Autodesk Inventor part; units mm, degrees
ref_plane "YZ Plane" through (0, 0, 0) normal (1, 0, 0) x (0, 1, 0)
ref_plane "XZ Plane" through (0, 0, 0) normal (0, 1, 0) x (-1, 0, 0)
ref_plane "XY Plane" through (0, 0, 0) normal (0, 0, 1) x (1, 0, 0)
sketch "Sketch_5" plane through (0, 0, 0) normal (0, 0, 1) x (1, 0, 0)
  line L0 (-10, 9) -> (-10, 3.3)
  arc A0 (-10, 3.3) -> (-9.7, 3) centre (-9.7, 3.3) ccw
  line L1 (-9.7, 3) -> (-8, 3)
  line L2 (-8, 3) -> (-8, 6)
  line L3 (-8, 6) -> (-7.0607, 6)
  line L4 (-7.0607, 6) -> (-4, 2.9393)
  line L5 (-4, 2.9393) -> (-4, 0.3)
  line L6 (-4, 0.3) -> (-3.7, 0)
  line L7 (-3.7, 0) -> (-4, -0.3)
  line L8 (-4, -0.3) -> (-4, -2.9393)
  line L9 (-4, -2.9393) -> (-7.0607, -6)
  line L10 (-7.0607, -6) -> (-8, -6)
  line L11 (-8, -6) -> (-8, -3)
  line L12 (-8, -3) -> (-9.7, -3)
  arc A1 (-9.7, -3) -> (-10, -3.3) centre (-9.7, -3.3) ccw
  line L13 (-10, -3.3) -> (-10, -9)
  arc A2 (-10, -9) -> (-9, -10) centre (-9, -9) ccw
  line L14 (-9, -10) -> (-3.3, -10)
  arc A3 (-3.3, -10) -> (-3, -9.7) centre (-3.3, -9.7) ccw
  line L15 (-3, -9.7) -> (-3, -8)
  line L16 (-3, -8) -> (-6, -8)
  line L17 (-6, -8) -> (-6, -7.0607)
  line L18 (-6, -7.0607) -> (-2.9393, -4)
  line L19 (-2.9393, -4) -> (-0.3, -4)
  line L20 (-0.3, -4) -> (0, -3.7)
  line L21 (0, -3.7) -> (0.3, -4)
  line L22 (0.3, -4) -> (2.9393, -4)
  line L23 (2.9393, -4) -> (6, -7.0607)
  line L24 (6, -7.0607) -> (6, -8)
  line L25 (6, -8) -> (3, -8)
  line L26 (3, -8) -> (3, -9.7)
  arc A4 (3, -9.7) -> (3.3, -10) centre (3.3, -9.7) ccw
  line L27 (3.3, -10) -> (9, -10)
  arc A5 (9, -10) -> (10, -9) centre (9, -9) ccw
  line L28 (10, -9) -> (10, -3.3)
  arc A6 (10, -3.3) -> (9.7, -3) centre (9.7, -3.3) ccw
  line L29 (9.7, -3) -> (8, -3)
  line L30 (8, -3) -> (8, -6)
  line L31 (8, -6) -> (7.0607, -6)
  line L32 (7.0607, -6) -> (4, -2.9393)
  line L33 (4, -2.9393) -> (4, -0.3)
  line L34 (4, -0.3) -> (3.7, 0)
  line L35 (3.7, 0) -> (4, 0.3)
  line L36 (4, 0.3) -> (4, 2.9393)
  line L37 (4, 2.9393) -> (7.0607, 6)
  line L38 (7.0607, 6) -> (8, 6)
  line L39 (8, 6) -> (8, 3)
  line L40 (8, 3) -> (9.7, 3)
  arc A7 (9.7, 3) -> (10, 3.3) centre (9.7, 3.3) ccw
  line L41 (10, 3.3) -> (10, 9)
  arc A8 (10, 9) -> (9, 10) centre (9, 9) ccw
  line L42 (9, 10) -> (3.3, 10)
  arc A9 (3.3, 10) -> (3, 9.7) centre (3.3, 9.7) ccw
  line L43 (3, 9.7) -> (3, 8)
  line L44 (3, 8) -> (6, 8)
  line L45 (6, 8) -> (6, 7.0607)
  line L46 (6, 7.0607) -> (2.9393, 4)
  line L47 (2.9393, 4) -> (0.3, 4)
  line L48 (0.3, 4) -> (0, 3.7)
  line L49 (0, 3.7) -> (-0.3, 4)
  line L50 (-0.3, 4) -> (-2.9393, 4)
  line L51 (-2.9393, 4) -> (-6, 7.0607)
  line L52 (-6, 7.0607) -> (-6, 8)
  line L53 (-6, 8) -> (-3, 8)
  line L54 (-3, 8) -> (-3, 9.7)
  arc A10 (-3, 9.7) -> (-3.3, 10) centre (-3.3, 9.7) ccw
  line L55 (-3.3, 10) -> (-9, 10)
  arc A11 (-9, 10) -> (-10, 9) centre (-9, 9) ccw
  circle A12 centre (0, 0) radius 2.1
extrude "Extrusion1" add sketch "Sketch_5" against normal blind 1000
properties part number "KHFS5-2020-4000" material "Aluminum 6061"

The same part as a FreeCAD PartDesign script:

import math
import FreeCAD as App
import Part
import Sketcher
Q = App.Units.Quantity

doc = App.newDocument("Part")
body = doc.addObject("PartDesign::Body", "Body")

sketch1 = doc.addObject("Sketcher::SketchObject", "Sketch")
body.addObject(sketch1)
sketch1.AttachmentSupport = (doc.XY_Plane, [""])
sketch1.MapMode = "FlatFace"
sketch1.addGeometry([
    Part.ArcOfCircle(Part.Circle(App.Vector(-9, 9, 0), App.Vector(0, 0, 1), 1), math.radians(90), math.radians(180)),
    Part.LineSegment(App.Vector(-10, 9, 0), App.Vector(-10, 3.3, 0)),
    Part.ArcOfCircle(Part.Circle(App.Vector(-9.7, 3.3, 0), App.Vector(0, 0, 1), 0.3), math.radians(180), math.radians(270)),
    Part.LineSegment(App.Vector(-9.7, 3, 0), App.Vector(-8, 3, 0)),
    Part.LineSegment(App.Vector(-8, 3, 0), App.Vector(-8, 6, 0)),
    Part.LineSegment(App.Vector(-8, 6, 0), App.Vector(-7.06, 6, 0)),
    Part.LineSegment(App.Vector(-7.06, 6, 0), App.Vector(-4, 2.94, 0)),
    Part.LineSegment(App.Vector(-4, 2.94, 0), App.Vector(-4, 0.3, 0)),
    Part.LineSegment(App.Vector(-4, 0.3, 0), App.Vector(-3.7, 0, 0)),
    Part.LineSegment(App.Vector(-3.7, 0, 0), App.Vector(-4, -0.3, 0)),
    Part.LineSegment(App.Vector(-4, -0.3, 0), App.Vector(-4, -2.94, 0)),
    Part.LineSegment(App.Vector(-4, -2.94, 0), App.Vector(-7.06, -6, 0)),
    Part.LineSegment(App.Vector(-7.06, -6, 0), App.Vector(-8, -6, 0)),
    Part.LineSegment(App.Vector(-8, -6, 0), App.Vector(-8, -3, 0)),
    Part.LineSegment(App.Vector(-8, -3, 0), App.Vector(-9.7, -3, 0)),
    Part.ArcOfCircle(Part.Circle(App.Vector(-9.7, -3.3, 0), App.Vector(0, 0, 1), 0.3), math.radians(90), math.radians(180)),
    Part.LineSegment(App.Vector(-10, -3.3, 0), App.Vector(-10, -9, 0)),
    Part.ArcOfCircle(Part.Circle(App.Vector(-9, -9, 0), App.Vector(0, 0, 1), 1), math.radians(180), math.radians(270)),
    Part.LineSegment(App.Vector(-9, -10, 0), App.Vector(-3.3, -10, 0)),
    Part.ArcOfCircle(Part.Circle(App.Vector(-3.3, -9.7, 0), App.Vector(0, 0, 1), 0.3), math.radians(-90), math.radians(0)),
    Part.LineSegment(App.Vector(-3, -9.7, 0), App.Vector(-3, -8, 0)),
    Part.LineSegment(App.Vector(-3, -8, 0), App.Vector(-6, -8, 0)),
    Part.LineSegment(App.Vector(-6, -8, 0), App.Vector(-6, -7.06, 0)),
    Part.LineSegment(App.Vector(-6, -7.06, 0), App.Vector(-2.94, -4, 0)),
    Part.LineSegment(App.Vector(-2.94, -4, 0), App.Vector(-0.3, -4, 0)),
    Part.LineSegment(App.Vector(-0.3, -4, 0), App.Vector(0, -3.7, 0)),
    Part.LineSegment(App.Vector(0, -3.7, 0), App.Vector(0.3, -4, 0)),
    Part.LineSegment(App.Vector(0.3, -4, 0), App.Vector(2.94, -4, 0)),
    Part.LineSegment(App.Vector(2.94, -4, 0), App.Vector(6, -7.06, 0)),
    Part.LineSegment(App.Vector(6, -7.06, 0), App.Vector(6, -8, 0)),
    Part.LineSegment(App.Vector(6, -8, 0), App.Vector(3, -8, 0)),
    Part.LineSegment(App.Vector(3, -8, 0), App.Vector(3, -9.7, 0)),
    Part.ArcOfCircle(Part.Circle(App.Vector(3.3, -9.7, 0), App.Vector(0, 0, 1), 0.3), math.radians(180), math.radians(270)),
    Part.LineSegment(App.Vector(3.3, -10, 0), App.Vector(9, -10, 0)),
    Part.ArcOfCircle(Part.Circle(App.Vector(9, -9, 0), App.Vector(0, 0, 1), 1), math.radians(-90), math.radians(0)),
    Part.LineSegment(App.Vector(10, -9, 0), App.Vector(10, -3.3, 0)),
    Part.ArcOfCircle(Part.Circle(App.Vector(9.7, -3.3, 0), App.Vector(0, 0, 1), 0.3), math.radians(0), math.radians(90)),
    Part.LineSegment(App.Vector(9.7, -3, 0), App.Vector(8, -3, 0)),
    Part.LineSegment(App.Vector(8, -3, 0), App.Vector(8, -6, 0)),
    Part.LineSegment(App.Vector(8, -6, 0), App.Vector(7.06, -6, 0)),
    Part.LineSegment(App.Vector(7.06, -6, 0), App.Vector(4, -2.94, 0)),
    Part.LineSegment(App.Vector(4, -2.94, 0), App.Vector(4, -0.3, 0)),
    Part.LineSegment(App.Vector(4, -0.3, 0), App.Vector(3.7, 0, 0)),
    Part.LineSegment(App.Vector(3.7, 0, 0), App.Vector(4, 0.3, 0)),
    Part.LineSegment(App.Vector(4, 0.3, 0), App.Vector(4, 2.94, 0)),
    Part.LineSegment(App.Vector(4, 2.94, 0), App.Vector(7.06, 6, 0)),
    Part.LineSegment(App.Vector(7.06, 6, 0), App.Vector(8, 6, 0)),
    Part.LineSegment(App.Vector(8, 6, 0), App.Vector(8, 3, 0)),
    Part.LineSegment(App.Vector(8, 3, 0), App.Vector(9.7, 3, 0)),
    Part.ArcOfCircle(Part.Circle(App.Vector(9.7, 3.3, 0), App.Vector(0, 0, 1), 0.3), math.radians(-90), math.radians(0)),
    Part.LineSegment(App.Vector(10, 3.3, 0), App.Vector(10, 9, 0)),
    Part.ArcOfCircle(Part.Circle(App.Vector(9, 9, 0), App.Vector(0, 0, 1), 1), math.radians(0), math.radians(90)),
    Part.LineSegment(App.Vector(9, 10, 0), App.Vector(3.3, 10, 0)),
    Part.ArcOfCircle(Part.Circle(App.Vector(3.3, 9.7, 0), App.Vector(0, 0, 1), 0.3), math.radians(90), math.radians(180)),
    Part.LineSegment(App.Vector(3, 9.7, 0), App.Vector(3, 8, 0)),
    Part.LineSegment(App.Vector(3, 8, 0), App.Vector(6, 8, 0)),
    Part.LineSegment(App.Vector(6, 8, 0), App.Vector(6, 7.06, 0)),
    Part.LineSegment(App.Vector(6, 7.06, 0), App.Vector(2.94, 4, 0)),
    Part.LineSegment(App.Vector(2.94, 4, 0), App.Vector(0.3, 4, 0)),
    Part.LineSegment(App.Vector(0.3, 4, 0), App.Vector(0, 3.7, 0)),
    Part.LineSegment(App.Vector(0, 3.7, 0), App.Vector(-0.3, 4, 0)),
    Part.LineSegment(App.Vector(-0.3, 4, 0), App.Vector(-2.94, 4, 0)),
    Part.LineSegment(App.Vector(-2.94, 4, 0), App.Vector(-6, 7.06, 0)),
    Part.LineSegment(App.Vector(-6, 7.06, 0), App.Vector(-6, 8, 0)),
    Part.LineSegment(App.Vector(-6, 8, 0), App.Vector(-3, 8, 0)),
    Part.LineSegment(App.Vector(-3, 8, 0), App.Vector(-3, 9.7, 0)),
    Part.ArcOfCircle(Part.Circle(App.Vector(-3.3, 9.7, 0), App.Vector(0, 0, 1), 0.3), math.radians(0), math.radians(90)),
    Part.LineSegment(App.Vector(-3.3, 10, 0), App.Vector(-9, 10, 0)),
    Part.Circle(App.Vector(0, 0, 0), App.Vector(0, 0, 1), 2.1),
], False)
sketch1.addConstraint([
    Sketcher.Constraint("Tangent", 0, 2, 1, 1),
    Sketcher.Constraint("Tangent", 1, 2, 2, 1),
    Sketcher.Constraint("Tangent", 2, 2, 3, 1),
    Sketcher.Constraint("Coincident", 3, 2, 4, 1),
    Sketcher.Constraint("Coincident", 4, 2, 5, 1),
    Sketcher.Constraint("Coincident", 5, 2, 6, 1),
    Sketcher.Constraint("Coincident", 6, 2, 7, 1),
    Sketcher.Constraint("Coincident", 7, 2, 8, 1),
    Sketcher.Constraint("Coincident", 8, 2, 9, 1),
    Sketcher.Constraint("Coincident", 9, 2, 10, 1),
    Sketcher.Constraint("Coincident", 10, 2, 11, 1),
    Sketcher.Constraint("Coincident", 11, 2, 12, 1),
    Sketcher.Constraint("Coincident", 12, 2, 13, 1),
    Sketcher.Constraint("Coincident", 13, 2, 14, 1),
    Sketcher.Constraint("Tangent", 14, 2, 15, 1),
    Sketcher.Constraint("Tangent", 15, 2, 16, 1),
    Sketcher.Constraint("Tangent", 16, 2, 17, 1),
    Sketcher.Constraint("Tangent", 17, 2, 18, 1),
    Sketcher.Constraint("Tangent", 18, 2, 19, 1),
    Sketcher.Constraint("Tangent", 19, 2, 20, 1),
    Sketcher.Constraint("Coincident", 20, 2, 21, 1),
    Sketcher.Constraint("Coincident", 21, 2, 22, 1),
    Sketcher.Constraint("Coincident", 22, 2, 23, 1),
    Sketcher.Constraint("Coincident", 23, 2, 24, 1),
    Sketcher.Constraint("Coincident", 24, 2, 25, 1),
    Sketcher.Constraint("Coincident", 25, 2, 26, 1),
    Sketcher.Constraint("Coincident", 26, 2, 27, 1),
    Sketcher.Constraint("Coincident", 27, 2, 28, 1),
    Sketcher.Constraint("Coincident", 28, 2, 29, 1),
    Sketcher.Constraint("Coincident", 29, 2, 30, 1),
    Sketcher.Constraint("Coincident", 30, 2, 31, 1),
    Sketcher.Constraint("Tangent", 31, 2, 32, 1),
    Sketcher.Constraint("Tangent", 32, 2, 33, 1),
    Sketcher.Constraint("Tangent", 33, 2, 34, 1),
    Sketcher.Constraint("Tangent", 34, 2, 35, 1),
    Sketcher.Constraint("Tangent", 35, 2, 36, 1),
    Sketcher.Constraint("Tangent", 36, 2, 37, 1),
    Sketcher.Constraint("Coincident", 37, 2, 38, 1),
    Sketcher.Constraint("Coincident", 38, 2, 39, 1),
    Sketcher.Constraint("Coincident", 39, 2, 40, 1),
    Sketcher.Constraint("Coincident", 40, 2, 41, 1),
    Sketcher.Constraint("Coincident", 41, 2, 42, 1),
    Sketcher.Constraint("Coincident", 42, 2, 43, 1),
    Sketcher.Constraint("Coincident", 43, 2, 44, 1),
    Sketcher.Constraint("Coincident", 44, 2, 45, 1),
    Sketcher.Constraint("Coincident", 45, 2, 46, 1),
    Sketcher.Constraint("Coincident", 46, 2, 47, 1),
    Sketcher.Constraint("Coincident", 47, 2, 48, 1),
    Sketcher.Constraint("Tangent", 48, 2, 49, 1),
    Sketcher.Constraint("Tangent", 49, 2, 50, 1),
    Sketcher.Constraint("Tangent", 50, 2, 51, 1),
    Sketcher.Constraint("Tangent", 51, 2, 52, 1),
    Sketcher.Constraint("Tangent", 52, 2, 53, 1),
    Sketcher.Constraint("Tangent", 53, 2, 54, 1),
    Sketcher.Constraint("Coincident", 54, 2, 55, 1),
    Sketcher.Constraint("Coincident", 55, 2, 56, 1),
    Sketcher.Constraint("Coincident", 56, 2, 57, 1),
    Sketcher.Constraint("Coincident", 57, 2, 58, 1),
    Sketcher.Constraint("Coincident", 58, 2, 59, 1),
    Sketcher.Constraint("Coincident", 59, 2, 60, 1),
    Sketcher.Constraint("Coincident", 60, 2, 61, 1),
    Sketcher.Constraint("Coincident", 61, 2, 62, 1),
    Sketcher.Constraint("Coincident", 62, 2, 63, 1),
    Sketcher.Constraint("Coincident", 63, 2, 64, 1),
    Sketcher.Constraint("Coincident", 64, 2, 65, 1),
    Sketcher.Constraint("Tangent", 65, 2, 66, 1),
    Sketcher.Constraint("Tangent", 66, 2, 67, 1),
    Sketcher.Constraint("Tangent", 67, 2, 0, 1),
    Sketcher.Constraint("Vertical", 1),
    Sketcher.Constraint("Horizontal", 3),
    Sketcher.Constraint("Vertical", 4),
    Sketcher.Constraint("Horizontal", 5),
    Sketcher.Constraint("Vertical", 7),
    Sketcher.Constraint("Vertical", 10),
    Sketcher.Constraint("Horizontal", 12),
    Sketcher.Constraint("Vertical", 13),
    Sketcher.Constraint("Horizontal", 14),
    Sketcher.Constraint("Vertical", 16),
    Sketcher.Constraint("Horizontal", 18),
    Sketcher.Constraint("Vertical", 20),
    Sketcher.Constraint("Horizontal", 21),
    Sketcher.Constraint("Vertical", 22),
    Sketcher.Constraint("Horizontal", 24),
    Sketcher.Constraint("Horizontal", 27),
    Sketcher.Constraint("Vertical", 29),
    Sketcher.Constraint("Horizontal", 30),
    Sketcher.Constraint("Vertical", 31),
    Sketcher.Constraint("Horizontal", 33),
    Sketcher.Constraint("Vertical", 35),
    Sketcher.Constraint("Horizontal", 37),
    Sketcher.Constraint("Vertical", 38),
    Sketcher.Constraint("Horizontal", 39),
    Sketcher.Constraint("Vertical", 41),
    Sketcher.Constraint("Vertical", 44),
    Sketcher.Constraint("Horizontal", 46),
    Sketcher.Constraint("Vertical", 47),
    Sketcher.Constraint("Horizontal", 48),
    Sketcher.Constraint("Vertical", 50),
    Sketcher.Constraint("Horizontal", 52),
    Sketcher.Constraint("Vertical", 54),
    Sketcher.Constraint("Horizontal", 55),
    Sketcher.Constraint("Vertical", 56),
    Sketcher.Constraint("Horizontal", 58),
    Sketcher.Constraint("Horizontal", 61),
    Sketcher.Constraint("Vertical", 63),
    Sketcher.Constraint("Horizontal", 64),
    Sketcher.Constraint("Vertical", 65),
    Sketcher.Constraint("Horizontal", 67),
    Sketcher.Constraint("Coincident", 68, 3, -1, 1),
    Sketcher.Constraint("Equal", 2, 15),
    Sketcher.Constraint("Equal", 0, 17),
    Sketcher.Constraint("Equal", 15, 19),
    Sketcher.Constraint("Equal", 19, 32),
    Sketcher.Constraint("Equal", 17, 34),
    Sketcher.Constraint("Equal", 32, 36),
    Sketcher.Constraint("Equal", 36, 49),
    Sketcher.Constraint("Equal", 34, 51),
    Sketcher.Constraint("Equal", 49, 53),
    Sketcher.Constraint("Equal", 53, 66),
    Sketcher.Constraint("Symmetric", 0, 3, 34, 3, -1, 1),
    Sketcher.Constraint("Symmetric", 15, 3, 49, 3, -1, 1),
    Sketcher.Constraint("Symmetric", 19, 3, 53, 3, -1, 1),
    Sketcher.Constraint("Symmetric", 3, 2, 37, 2, -1, 1),
    Sketcher.Constraint("Symmetric", 5, 2, 39, 2, -1, 1),
    Sketcher.Constraint("Symmetric", 6, 2, 40, 2, -1, 1),
    Sketcher.Constraint("Symmetric", 8, 2, 42, 2, -1, 1),
    Sketcher.Constraint("Symmetric", 9, 2, 43, 2, -1, 1),
    Sketcher.Constraint("Symmetric", 11, 2, 45, 2, -1, 1),
    Sketcher.Constraint("Symmetric", 21, 2, 55, 2, -1, 1),
    Sketcher.Constraint("Symmetric", 23, 2, 57, 2, -1, 1),
    Sketcher.Constraint("Symmetric", 25, 2, 59, 2, -1, 1),
    Sketcher.Constraint("Symmetric", 26, 2, 60, 2, -1, 1),
    Sketcher.Constraint("Symmetric", 28, 2, 62, 2, -1, 1),
    Sketcher.Constraint("Symmetric", 30, 2, 64, 2, -1, 1),
    Sketcher.Constraint("Symmetric", 19, 3, 32, 3, -2),
    Sketcher.Constraint("Symmetric", 15, 3, 36, 3, -2),
    Sketcher.Constraint("Symmetric", 24, 2, 26, 2, -2),
    Sketcher.Constraint("Symmetric", 22, 2, 28, 2, -2),
    Sketcher.Constraint("Symmetric", 12, 2, 38, 2, -2),
    Sketcher.Constraint("Symmetric", 10, 2, 40, 2, -2),
    Sketcher.Constraint("PointOnObject", 8, 2, -1),
    Sketcher.Constraint("PointOnObject", 25, 2, -2),
    Sketcher.Constraint("Parallel", 6, 8),
    Sketcher.Constraint("Perpendicular", 8, 9),
    Sketcher.Constraint("Parallel", 9, 11),
    Sketcher.Constraint("Parallel", 11, 23),
    Sketcher.Constraint("Parallel", 23, 25),
    Sketcher.Constraint("Perpendicular", 25, 26),
    Sketcher.Constraint("Parallel", 26, 28),
    Sketcher.Constraint("Parallel", 40, 42),
    Sketcher.Constraint("Parallel", 43, 45),
    Sketcher.Constraint("Parallel", 45, 57),
    Sketcher.Constraint("Parallel", 57, 59),
    Sketcher.Constraint("Parallel", 60, 62),
    Sketcher.Constraint("Horizontal", 21, 2, 29, 2),
    Sketcher.Constraint("Vertical", 38, 2, 46, 2),
    Sketcher.Constraint("Equal", 67, 1),
    Sketcher.Constraint("Equal", 64, 4),
    Sketcher.Constraint("Equal", 61, 7),
    Sketcher.Constraint("Equal", 48, 20),
    Sketcher.Constraint("Equal", 46, 22),
    Sketcher.Constraint("Equal", 11, 23),
    Sketcher.Constraint("Equal", 9, 25),
    Sketcher.Constraint("Radius", 0, Q("1 mm")),
    Sketcher.Constraint("Diameter", 68, Q("4.2 mm")),
    Sketcher.Constraint("Radius", 2, Q("0.3 mm")),
    Sketcher.Constraint("DistanceX", 21, 2, 21, 1, Q("3 mm")),
    Sketcher.Constraint("DistanceX", 3, 1, 3, 2, Q("1.7 mm")),
    Sketcher.Constraint("DistanceX", 18, 1, 18, 2, Q("5.7 mm")),
    Sketcher.Constraint("DistanceX", 0, 3, -1, 1, Q("9 mm")),
    Sketcher.Constraint("DistanceX", 6, 2, -1, 1, Q("4 mm")),
    Sketcher.Constraint("DistanceY", -1, 1, 7, 2, Q("0.3 mm")),
    Sketcher.Constraint("DistanceX", 5, 1, 5, 2, Q("0.9393 mm")),
])
pad1 = doc.addObject("PartDesign::Pad", "Pad")
body.addObject(pad1)
pad1.Profile = sketch1
pad1.Length = 1000
pad1.Reversed = True

doc.recompute()
